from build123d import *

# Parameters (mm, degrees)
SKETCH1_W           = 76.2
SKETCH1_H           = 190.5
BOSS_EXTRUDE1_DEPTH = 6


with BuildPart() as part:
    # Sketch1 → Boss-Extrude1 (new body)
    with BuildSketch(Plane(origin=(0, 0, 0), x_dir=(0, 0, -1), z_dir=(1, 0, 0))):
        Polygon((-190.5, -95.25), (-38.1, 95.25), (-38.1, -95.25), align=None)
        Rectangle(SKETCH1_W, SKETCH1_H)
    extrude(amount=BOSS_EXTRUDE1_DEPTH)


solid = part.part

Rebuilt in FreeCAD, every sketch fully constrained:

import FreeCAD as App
import Part
import Sketcher

V = App.Vector
Q = App.Units.Quantity

doc = App.newDocument("Part")
body = doc.addObject("PartDesign::Body", "Body")

sketch1 = body.newObject("Sketcher::SketchObject", "Sketch")
sketch1.AttachmentSupport = (doc.getObject("YZ_Plane"), [""])
sketch1.MapMode = "FlatFace"
sketch1.addGeometry(Part.LineSegment(V(95, 38, 0), V(-95, 190, 0)), False)
sketch1.addGeometry(Part.LineSegment(V(-95, 190, 0), V(-95, -38, 0)), False)
sketch1.addGeometry(Part.LineSegment(V(-95, -38, 0), V(95, -38, 0)), False)
sketch1.addGeometry(Part.LineSegment(V(95, -38, 0), V(95, 38, 0)), False)
sketch1.addConstraint(Sketcher.Constraint("Coincident", 0, 2, 1, 1))
sketch1.addConstraint(Sketcher.Constraint("Coincident", 1, 2, 2, 1))
sketch1.addConstraint(Sketcher.Constraint("Coincident", 2, 2, 3, 1))
sketch1.addConstraint(Sketcher.Constraint("Coincident", 3, 2, 0, 1))
sketch1.addConstraint(Sketcher.Constraint("Vertical", 1))
sketch1.addConstraint(Sketcher.Constraint("Horizontal", 2))
sketch1.addConstraint(Sketcher.Constraint("Vertical", 3))
sketch1.addConstraint(Sketcher.Constraint("Symmetric", 1, 2, 3, 2, -1, 1))
sketch1.addConstraint(Sketcher.Constraint("DistanceY", 1, 2, 1, 1, Q("9 in")))
sketch1.addConstraint(Sketcher.Constraint("DistanceY", 3, 1, 3, 2, Q("3 in")))
sketch1.addConstraint(Sketcher.Constraint("DistanceX", 2, 1, 2, 2, Q("7.5 in")))
pad1 = body.newObject("PartDesign::Pad", "Pad")
pad1.Profile = sketch1
pad1.Length = 6

doc.recompute()
